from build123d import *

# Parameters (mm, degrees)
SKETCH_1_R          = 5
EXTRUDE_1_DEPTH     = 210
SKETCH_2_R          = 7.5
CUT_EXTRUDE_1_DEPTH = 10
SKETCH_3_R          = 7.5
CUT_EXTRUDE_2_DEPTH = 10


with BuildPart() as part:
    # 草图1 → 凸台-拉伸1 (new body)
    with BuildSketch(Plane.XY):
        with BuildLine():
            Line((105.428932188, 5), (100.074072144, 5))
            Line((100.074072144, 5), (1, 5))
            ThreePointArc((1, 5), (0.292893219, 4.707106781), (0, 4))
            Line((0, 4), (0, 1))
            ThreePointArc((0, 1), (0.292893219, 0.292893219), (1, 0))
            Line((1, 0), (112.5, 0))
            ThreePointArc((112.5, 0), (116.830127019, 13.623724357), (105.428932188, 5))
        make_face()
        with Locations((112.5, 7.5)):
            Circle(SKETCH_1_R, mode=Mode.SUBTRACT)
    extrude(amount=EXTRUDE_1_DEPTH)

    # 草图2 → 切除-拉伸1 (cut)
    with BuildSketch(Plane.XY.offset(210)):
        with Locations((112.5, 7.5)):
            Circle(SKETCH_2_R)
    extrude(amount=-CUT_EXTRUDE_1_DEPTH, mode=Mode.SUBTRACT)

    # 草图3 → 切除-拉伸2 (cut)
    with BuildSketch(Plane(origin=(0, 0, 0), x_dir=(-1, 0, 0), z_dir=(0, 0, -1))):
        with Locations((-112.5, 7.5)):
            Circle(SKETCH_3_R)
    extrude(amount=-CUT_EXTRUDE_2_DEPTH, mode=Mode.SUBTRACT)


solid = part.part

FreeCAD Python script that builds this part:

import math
import FreeCAD as App
import Part
import Sketcher

doc = App.newDocument("Part")
body = doc.addObject("PartDesign::Body", "Body")

sketch1 = body.newObject("Sketcher::SketchObject", "Sketch")
sketch1.AttachmentSupport = (doc.getObject("XY_Plane"), [""])
sketch1.MapMode = "FlatFace"
sketch1.addGeometry(Part.LineSegment(App.Vector(105.428932, 5, 0), App.Vector(1, 5, 0)), False)
sketch1.addGeometry(Part.ArcOfCircle(Part.Circle(App.Vector(1, 4, 0), App.Vector(0, 0, 1), 1), math.radians(90), math.radians(180)), False)
sketch1.addGeometry(Part.LineSegment(App.Vector(0, 4, 0), App.Vector(0, 1, 0)), False)
sketch1.addGeometry(Part.ArcOfCircle(Part.Circle(App.Vector(1, 1, 0), App.Vector(0, 0, 1), 1), math.radians(-180), math.radians(-90)), False)
sketch1.addGeometry(Part.LineSegment(App.Vector(1, 0, 0), App.Vector(112.5, 0, 0)), False)
sketch1.addGeometry(Part.ArcOfCircle(Part.Circle(App.Vector(112.5, 7.5, 0), App.Vector(0, 0, 1), 7.5), math.radians(-90), math.radians(199.471221)), False)
sketch1.addGeometry(Part.Circle(App.Vector(112.5, 7.5, 0), App.Vector(0, 0, 1), 5), False)
sketch1.addConstraint(Sketcher.Constraint("Tangent", 0, 2, 1, 1))
sketch1.addConstraint(Sketcher.Constraint("Tangent", 1, 2, 2, 1))
sketch1.addConstraint(Sketcher.Constraint("Tangent", 2, 2, 3, 1))
sketch1.addConstraint(Sketcher.Constraint("Tangent", 3, 2, 4, 1))
sketch1.addConstraint(Sketcher.Constraint("Tangent", 4, 2, 5, 1))
sketch1.addConstraint(Sketcher.Constraint("Coincident", 5, 2, 0, 1))
sketch1.addConstraint(Sketcher.Constraint("Horizontal", 0))
sketch1.addConstraint(Sketcher.Constraint("Vertical", 2))
sketch1.addConstraint(Sketcher.Constraint("Horizontal", 4))
sketch1.addConstraint(Sketcher.Constraint("Coincident", 6, 3, 5, 3))
sketch1.addConstraint(Sketcher.Constraint("Equal", 1, 3))
sketch1.addConstraint(Sketcher.Constraint("PointOnObject", 1, 2, -2))
sketch1.addConstraint(Sketcher.Constraint("PointOnObject", 3, 2, -1))
sketch1.addConstraint(Sketcher.Constraint("Diameter", 6, 10.0))
sketch1.addConstraint(Sketcher.Constraint("Radius", 1, 1.0))
sketch1.addConstraint(Sketcher.Constraint("Radius", 5, 7.5))
sketch1.addConstraint(Sketcher.Constraint("DistanceY", 2, 2, 2, 1, 3.0))
sketch1.addConstraint(Sketcher.Constraint("DistanceX", 4, 1, 4, 2, 111.5))
pad1 = body.newObject("PartDesign::Pad", "Pad")
pad1.Profile = sketch1
pad1.Length = 210

sketch2 = body.newObject("Sketcher::SketchObject", "Sketch001")
sketch2.AttachmentSupport = (doc.getObject("XY_Plane"), [""])
sketch2.MapMode = "FlatFace"
sketch2.AttachmentOffset = App.Placement(App.Vector(0, 0, 210), App.Rotation())
sketch2.addGeometry(Part.Circle(App.Vector(112.5, 7.5, 0), App.Vector(0, 0, 1), 7.5), False)
sketch2.addConstraint(Sketcher.Constraint("Diameter", 0, 15.0))
sketch2.addConstraint(Sketcher.Constraint("DistanceX", -1, 1, 0, 3, 112.5))
sketch2.addConstraint(Sketcher.Constraint("DistanceY", -1, 1, 0, 3, 7.5))
pocket1 = body.newObject("PartDesign::Pocket", "Pocket")
pocket1.Profile = sketch2
pocket1.Length = 10

sketch3 = body.newObject("Sketcher::SketchObject", "Sketch002")
sketch3.AttachmentSupport = (doc.getObject("XY_Plane"), [""])
sketch3.MapMode = "FlatFace"
sketch3.addGeometry(Part.Circle(App.Vector(112.5, 7.5, 0), App.Vector(0, 0, 1), 7.5), False)
sketch3.addConstraint(Sketcher.Constraint("Diameter", 0, 15.0))
sketch3.addConstraint(Sketcher.Constraint("DistanceX", -1, 1, 0, 3, 112.5))
sketch3.addConstraint(Sketcher.Constraint("DistanceY", -1, 1, 0, 3, 7.5))
pocket2 = body.newObject("PartDesign::Pocket", "Pocket001")
pocket2.Profile = sketch3
pocket2.Length = 10
pocket2.Reversed = True

doc.recompute()
